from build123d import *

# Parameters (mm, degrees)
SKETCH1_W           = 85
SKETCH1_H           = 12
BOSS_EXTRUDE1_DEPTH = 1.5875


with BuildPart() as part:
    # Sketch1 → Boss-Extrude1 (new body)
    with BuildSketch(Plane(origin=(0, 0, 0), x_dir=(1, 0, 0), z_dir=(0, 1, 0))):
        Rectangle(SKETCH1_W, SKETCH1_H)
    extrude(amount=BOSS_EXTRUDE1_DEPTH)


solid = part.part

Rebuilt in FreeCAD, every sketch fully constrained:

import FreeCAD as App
import Part
import Sketcher
from FreeCAD import Vector
Q = App.Units.Quantity


def add_polygon(sketch, points):
    """Adds a closed chain of lines whose ends are joined by coincident constraints."""
    first, n = sketch.GeometryCount, len(points)
    for a, b in zip(points, points[1:] + points[:1]):
        sketch.addGeometry(Part.LineSegment(App.Vector(*a, 0), App.Vector(*b, 0)), False)
    for i in range(n):
        sketch.addConstraint(Sketcher.Constraint("Coincident", first + i, 2, first + (i + 1) % n, 1))

doc = App.newDocument("Part")
body = doc.addObject("PartDesign::Body", "Body")

sketch1 = doc.addObject("Sketcher::SketchObject", "Sketch")
body.addObject(sketch1)
sketch1.AttachmentSupport = (doc.XZ_Plane, [""])
sketch1.MapMode = "FlatFace"
add_polygon(sketch1, [(-42, -6), (-42, 6), (42, 6), (42, -6)])
sketch1.addConstraint(Sketcher.Constraint("Vertical", 0))
sketch1.addConstraint(Sketcher.Constraint("Horizontal", 1))
sketch1.addConstraint(Sketcher.Constraint("Vertical", 2))
sketch1.addConstraint(Sketcher.Constraint("Horizontal", 3))
sketch1.addConstraint(Sketcher.Constraint("Symmetric", 0, 2, 2, 2, -1, 1))
sketch1.addConstraint(Sketcher.Constraint("DistanceX", 1, 1, 1, 2, Q("85 mm")))
sketch1.addConstraint(Sketcher.Constraint("DistanceY", 0, 1, 0, 2, Q("12 mm")))
pad1 = doc.addObject("PartDesign::Pad", "Pad")
body.addObject(pad1)
pad1.Profile = sketch1
pad1.Length = 1.5875
pad1.Reversed = True

doc.recompute()
